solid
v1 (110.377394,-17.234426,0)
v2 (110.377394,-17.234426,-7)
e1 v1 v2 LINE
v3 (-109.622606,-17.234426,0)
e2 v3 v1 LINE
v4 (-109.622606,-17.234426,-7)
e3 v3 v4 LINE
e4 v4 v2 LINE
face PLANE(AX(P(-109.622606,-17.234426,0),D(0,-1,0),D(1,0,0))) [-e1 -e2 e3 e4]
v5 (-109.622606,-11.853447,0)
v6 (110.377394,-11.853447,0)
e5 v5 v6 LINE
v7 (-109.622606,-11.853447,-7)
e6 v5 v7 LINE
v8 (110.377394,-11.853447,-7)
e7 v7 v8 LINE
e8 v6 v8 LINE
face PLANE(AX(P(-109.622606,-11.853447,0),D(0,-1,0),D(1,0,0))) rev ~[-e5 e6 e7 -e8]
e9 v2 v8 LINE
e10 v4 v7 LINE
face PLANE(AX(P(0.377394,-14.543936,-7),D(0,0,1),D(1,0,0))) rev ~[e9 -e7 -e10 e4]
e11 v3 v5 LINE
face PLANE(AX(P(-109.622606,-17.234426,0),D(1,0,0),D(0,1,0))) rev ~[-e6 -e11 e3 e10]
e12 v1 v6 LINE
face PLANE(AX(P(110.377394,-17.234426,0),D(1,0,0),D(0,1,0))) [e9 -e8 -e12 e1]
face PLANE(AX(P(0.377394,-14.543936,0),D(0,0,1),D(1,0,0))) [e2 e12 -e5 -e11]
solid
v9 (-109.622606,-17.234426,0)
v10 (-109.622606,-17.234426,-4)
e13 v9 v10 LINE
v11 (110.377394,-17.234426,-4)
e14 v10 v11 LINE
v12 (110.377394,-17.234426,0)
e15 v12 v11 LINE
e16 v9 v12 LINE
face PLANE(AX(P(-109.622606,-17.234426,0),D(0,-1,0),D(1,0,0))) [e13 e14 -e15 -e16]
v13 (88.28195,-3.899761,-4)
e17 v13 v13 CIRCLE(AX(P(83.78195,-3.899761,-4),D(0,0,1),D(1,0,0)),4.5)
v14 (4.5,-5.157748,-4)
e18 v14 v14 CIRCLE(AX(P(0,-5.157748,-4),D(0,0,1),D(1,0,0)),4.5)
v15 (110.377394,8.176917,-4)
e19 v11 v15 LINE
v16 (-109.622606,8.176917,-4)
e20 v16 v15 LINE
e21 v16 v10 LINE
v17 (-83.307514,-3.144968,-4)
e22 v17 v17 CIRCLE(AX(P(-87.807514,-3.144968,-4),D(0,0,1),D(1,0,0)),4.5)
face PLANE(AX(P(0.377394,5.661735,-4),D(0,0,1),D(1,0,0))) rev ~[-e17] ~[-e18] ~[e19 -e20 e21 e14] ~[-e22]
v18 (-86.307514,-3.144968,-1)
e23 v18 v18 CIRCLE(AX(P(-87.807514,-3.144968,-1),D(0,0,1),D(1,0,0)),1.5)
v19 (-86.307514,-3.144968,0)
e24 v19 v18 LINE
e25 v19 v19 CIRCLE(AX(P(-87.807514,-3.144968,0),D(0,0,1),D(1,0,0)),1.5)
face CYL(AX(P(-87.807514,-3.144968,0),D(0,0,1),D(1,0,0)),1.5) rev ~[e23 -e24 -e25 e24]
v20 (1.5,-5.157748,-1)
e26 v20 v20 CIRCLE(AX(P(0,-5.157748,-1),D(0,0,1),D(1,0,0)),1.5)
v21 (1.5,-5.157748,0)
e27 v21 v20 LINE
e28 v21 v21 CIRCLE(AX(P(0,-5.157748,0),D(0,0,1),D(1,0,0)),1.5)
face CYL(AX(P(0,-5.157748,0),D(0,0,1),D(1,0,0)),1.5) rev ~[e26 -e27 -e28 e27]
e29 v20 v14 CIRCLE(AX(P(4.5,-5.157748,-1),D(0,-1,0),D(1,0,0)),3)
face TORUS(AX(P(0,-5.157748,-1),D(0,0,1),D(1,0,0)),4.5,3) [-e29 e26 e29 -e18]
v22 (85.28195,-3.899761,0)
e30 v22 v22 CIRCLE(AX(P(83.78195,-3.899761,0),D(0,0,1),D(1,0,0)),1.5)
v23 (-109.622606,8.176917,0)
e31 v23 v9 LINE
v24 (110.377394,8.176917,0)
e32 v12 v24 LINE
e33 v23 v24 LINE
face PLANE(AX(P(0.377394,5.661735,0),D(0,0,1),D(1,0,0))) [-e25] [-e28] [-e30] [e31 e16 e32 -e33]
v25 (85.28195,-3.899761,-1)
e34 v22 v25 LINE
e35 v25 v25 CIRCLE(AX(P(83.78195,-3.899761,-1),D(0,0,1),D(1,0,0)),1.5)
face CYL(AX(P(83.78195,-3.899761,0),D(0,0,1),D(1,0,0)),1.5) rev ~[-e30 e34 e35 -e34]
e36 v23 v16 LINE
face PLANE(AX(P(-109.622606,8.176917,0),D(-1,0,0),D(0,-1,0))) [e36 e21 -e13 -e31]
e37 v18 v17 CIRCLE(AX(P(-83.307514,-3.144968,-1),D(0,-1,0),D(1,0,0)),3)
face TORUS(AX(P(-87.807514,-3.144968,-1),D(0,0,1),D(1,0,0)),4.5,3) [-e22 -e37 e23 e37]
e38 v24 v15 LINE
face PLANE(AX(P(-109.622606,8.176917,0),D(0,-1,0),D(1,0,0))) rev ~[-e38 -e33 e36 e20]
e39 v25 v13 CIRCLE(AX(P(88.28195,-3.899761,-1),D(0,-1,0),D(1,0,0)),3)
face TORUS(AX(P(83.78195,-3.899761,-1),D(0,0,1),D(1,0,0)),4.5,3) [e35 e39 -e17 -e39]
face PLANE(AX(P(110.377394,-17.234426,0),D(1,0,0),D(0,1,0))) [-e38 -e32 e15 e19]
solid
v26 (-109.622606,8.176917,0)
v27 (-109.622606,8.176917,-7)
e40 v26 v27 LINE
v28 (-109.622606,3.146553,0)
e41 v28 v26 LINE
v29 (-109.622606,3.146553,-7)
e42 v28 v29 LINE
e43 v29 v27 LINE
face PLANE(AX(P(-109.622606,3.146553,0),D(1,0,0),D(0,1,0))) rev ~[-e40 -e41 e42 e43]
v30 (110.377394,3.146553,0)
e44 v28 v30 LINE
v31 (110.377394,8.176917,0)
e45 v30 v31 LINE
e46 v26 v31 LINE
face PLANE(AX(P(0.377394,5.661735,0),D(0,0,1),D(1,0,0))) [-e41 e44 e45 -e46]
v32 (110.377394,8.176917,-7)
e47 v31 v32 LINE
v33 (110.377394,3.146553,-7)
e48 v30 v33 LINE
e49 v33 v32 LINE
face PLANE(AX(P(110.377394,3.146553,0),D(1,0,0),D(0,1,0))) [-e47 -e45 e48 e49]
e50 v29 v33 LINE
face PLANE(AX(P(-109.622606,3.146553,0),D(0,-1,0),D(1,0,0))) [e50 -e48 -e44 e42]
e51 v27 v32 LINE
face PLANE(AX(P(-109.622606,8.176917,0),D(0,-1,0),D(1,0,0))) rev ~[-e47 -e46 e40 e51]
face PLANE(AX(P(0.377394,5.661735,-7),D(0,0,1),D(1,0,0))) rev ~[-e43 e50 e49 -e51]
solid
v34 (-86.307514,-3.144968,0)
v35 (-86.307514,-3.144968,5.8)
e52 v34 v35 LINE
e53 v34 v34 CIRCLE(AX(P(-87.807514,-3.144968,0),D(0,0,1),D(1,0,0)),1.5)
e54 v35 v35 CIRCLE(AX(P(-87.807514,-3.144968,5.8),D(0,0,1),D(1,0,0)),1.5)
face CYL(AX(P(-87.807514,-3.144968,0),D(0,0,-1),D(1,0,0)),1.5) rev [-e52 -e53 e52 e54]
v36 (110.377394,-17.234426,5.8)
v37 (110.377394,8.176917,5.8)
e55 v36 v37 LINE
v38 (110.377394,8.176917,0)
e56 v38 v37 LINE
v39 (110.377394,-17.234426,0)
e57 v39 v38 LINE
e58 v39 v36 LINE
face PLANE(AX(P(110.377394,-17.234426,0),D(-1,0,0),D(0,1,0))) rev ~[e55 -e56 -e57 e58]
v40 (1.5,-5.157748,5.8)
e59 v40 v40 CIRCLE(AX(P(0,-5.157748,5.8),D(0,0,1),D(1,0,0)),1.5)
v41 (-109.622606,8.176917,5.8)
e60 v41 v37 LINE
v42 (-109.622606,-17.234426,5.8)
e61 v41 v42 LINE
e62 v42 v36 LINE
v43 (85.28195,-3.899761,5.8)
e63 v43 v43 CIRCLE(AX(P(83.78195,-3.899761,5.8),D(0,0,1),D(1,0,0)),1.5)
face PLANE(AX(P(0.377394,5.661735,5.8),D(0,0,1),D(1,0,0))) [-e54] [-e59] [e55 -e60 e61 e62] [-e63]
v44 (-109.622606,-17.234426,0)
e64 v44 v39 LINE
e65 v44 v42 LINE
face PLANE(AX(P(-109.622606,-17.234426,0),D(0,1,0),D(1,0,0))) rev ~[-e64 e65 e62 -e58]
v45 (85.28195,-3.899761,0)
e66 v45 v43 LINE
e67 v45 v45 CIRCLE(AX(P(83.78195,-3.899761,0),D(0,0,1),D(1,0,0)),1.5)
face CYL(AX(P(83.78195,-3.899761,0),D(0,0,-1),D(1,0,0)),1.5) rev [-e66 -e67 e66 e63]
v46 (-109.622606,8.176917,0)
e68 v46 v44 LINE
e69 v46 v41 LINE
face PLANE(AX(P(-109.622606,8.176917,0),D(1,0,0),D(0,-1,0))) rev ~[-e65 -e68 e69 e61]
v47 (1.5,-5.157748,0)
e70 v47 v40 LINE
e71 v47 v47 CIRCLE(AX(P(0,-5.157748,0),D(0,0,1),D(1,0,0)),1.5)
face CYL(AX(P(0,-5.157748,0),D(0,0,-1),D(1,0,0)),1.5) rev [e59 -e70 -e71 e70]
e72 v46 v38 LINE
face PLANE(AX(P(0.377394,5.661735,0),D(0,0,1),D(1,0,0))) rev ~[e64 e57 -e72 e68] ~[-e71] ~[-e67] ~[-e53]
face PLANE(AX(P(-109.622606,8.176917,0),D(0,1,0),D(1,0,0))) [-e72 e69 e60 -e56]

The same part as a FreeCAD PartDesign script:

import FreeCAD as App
import Part
import Sketcher
from FreeCAD import Vector


def edges_at(feature, points):
    """Names of the edges that pass closest to the given points."""
    edges = feature.Shape.Edges
    near = lambda p: min(range(len(edges)), key=lambda i: edges[i].distToShape(Part.Vertex(*p))[0])
    return sorted({f"Edge{near(p) + 1}" for p in points})


def add_polygon(sketch, points):
    """Adds a closed chain of lines whose ends are joined by coincident constraints."""
    first, n = sketch.GeometryCount, len(points)
    for a, b in zip(points, points[1:] + points[:1]):
        sketch.addGeometry(Part.LineSegment(App.Vector(*a, 0), App.Vector(*b, 0)), False)
    for i in range(n):
        sketch.addConstraint(Sketcher.Constraint("Coincident", first + i, 2, first + (i + 1) % n, 1))

doc = App.newDocument("Part")
body = doc.addObject("PartDesign::Body", "Body")
body.AllowCompound = True

# Sketch on XY plane
sketch1 = doc.addObject("Sketcher::SketchObject", "Sketch")
body.addObject(sketch1)
sketch1.AttachmentSupport = (doc.XY_Plane, [""])
sketch1.MapMode = "FlatFace"
add_polygon(sketch1, [(-109.622606, -11.853447), (-109.622606, -17.234426), (110.377394, -17.234426), (110.377394, -11.853447)])  # lines 0-3
add_polygon(sketch1, [(-109.622606, 8.176917), (-109.622606, 3.146553), (110.377394, 3.146553), (110.377394, 8.176917)])  # lines 4-7
sketch1.addConstraint([
    Sketcher.Constraint("Vertical", 0),
    Sketcher.Constraint("Horizontal", 1),
    Sketcher.Constraint("Vertical", 2),
    Sketcher.Constraint("Horizontal", 3),
    Sketcher.Constraint("Vertical", 4),
    Sketcher.Constraint("Horizontal", 5),
    Sketcher.Constraint("Vertical", 6),
    Sketcher.Constraint("Horizontal", 7),
    Sketcher.Constraint("Vertical", 3, 2, 4, 2),
    Sketcher.Constraint("Vertical", 2, 2, 5, 2),
    Sketcher.Constraint("DistanceX", 1, 1, 1, 2, 220.0),
    Sketcher.Constraint("DistanceY", 3, 2, 4, 2, 15.0),
    Sketcher.Constraint("DistanceY", 0, 2, 0, 1, 5.380979),
    Sketcher.Constraint("DistanceY", 4, 2, 4, 1, 5.030364),
    Sketcher.Constraint("DistanceX", 0, 2, -1, 1, 109.622606),
    Sketcher.Constraint("DistanceY", 0, 2, -1, 1, 17.234426),
])
pad1 = doc.addObject("PartDesign::Pad", "Pad")
body.addObject(pad1)
pad1.Profile = sketch1
pad1.Length = 7
pad1.Reversed = True
body2 = doc.addObject("PartDesign::Body", "Body001")

# Sketch on XY plane
sketch2 = doc.addObject("Sketcher::SketchObject", "Sketch001")
body2.addObject(sketch2)
sketch2.AttachmentSupport = (doc.getObject("XY_Plane001"), [""])
sketch2.MapMode = "FlatFace"
add_polygon(sketch2, [(110.377394, 8.176917), (-109.622606, 8.176917), (-109.622606, -17.234426), (110.377394, -17.234426)])  # lines 0-3
sketch2.addGeometry(Part.Circle(Vector(0, -5.157748, 0), Vector(0, 0, 1), 1.5), False)  # 4
sketch2.addGeometry(Part.Circle(Vector(-87.807514, -3.144968, 0), Vector(0, 0, 1), 1.5), False)  # 5
sketch2.addGeometry(Part.Circle(Vector(83.78195, -3.899761, 0), Vector(0, 0, 1), 1.5), False)  # 6
sketch2.addConstraint([
    Sketcher.Constraint("Horizontal", 0),
    Sketcher.Constraint("Vertical", 1),
    Sketcher.Constraint("Horizontal", 2),
    Sketcher.Constraint("Vertical", 3),
    Sketcher.Constraint("Equal", 4, 5),
    Sketcher.Constraint("Equal", 5, 6),
    Sketcher.Constraint("PointOnObject", 4, 3, -2),
    Sketcher.Constraint("Diameter", 4, 3.0),
    Sketcher.Constraint("DistanceX", 0, 2, 0, 1, 220.0),
    Sketcher.Constraint("DistanceY", 1, 2, 1, 1, 25.411342),
    Sketcher.Constraint("DistanceY", 5, 3, -1, 1, 3.144968),
    Sketcher.Constraint("DistanceX", -1, 1, 6, 3, 83.78195),
    Sketcher.Constraint("DistanceY", 6, 3, -1, 1, 3.899761),
    Sketcher.Constraint("DistanceY", 4, 3, 5, 3, 2.01278),
    Sketcher.Constraint("DistanceX", 5, 3, 2, 2, 198.184908),
    Sketcher.Constraint("DistanceX", 5, 3, -1, 1, 87.807514),
    Sketcher.Constraint("DistanceY", -1, 1, 0, 2, 8.176917),
])
pad2 = doc.addObject("PartDesign::Pad", "Pad001")
body2.addObject(pad2)
pad2.Profile = sketch2
pad2.Length = 5.8
body3 = doc.addObject("PartDesign::Body", "Body002")

# Sketch on XY plane
sketch3 = doc.addObject("Sketcher::SketchObject", "Sketch002")
body3.addObject(sketch3)
sketch3.AttachmentSupport = (doc.getObject("XY_Plane002"), [""])
sketch3.MapMode = "FlatFace"
add_polygon(sketch3, [(110.377394, 8.176917), (-109.622606, 8.176917), (-109.622606, -17.234426), (110.377394, -17.234426)])  # lines 0-3
sketch3.addGeometry(Part.Circle(Vector(0, -5.157748, 0), Vector(0, 0, 1), 1.5), False)  # 4
sketch3.addGeometry(Part.Circle(Vector(-87.807514, -3.144968, 0), Vector(0, 0, 1), 1.5), False)  # 5
sketch3.addGeometry(Part.Circle(Vector(83.78195, -3.899761, 0), Vector(0, 0, 1), 1.5), False)  # 6
sketch3.addConstraint([
    Sketcher.Constraint("Horizontal", 0),
    Sketcher.Constraint("Vertical", 1),
    Sketcher.Constraint("Horizontal", 2),
    Sketcher.Constraint("Vertical", 3),
    Sketcher.Constraint("Equal", 4, 5),
    Sketcher.Constraint("Equal", 5, 6),
    Sketcher.Constraint("PointOnObject", 4, 3, -2),
    Sketcher.Constraint("Diameter", 4, 3.0),
    Sketcher.Constraint("DistanceX", 0, 2, 0, 1, 220.0),
    Sketcher.Constraint("DistanceY", 1, 2, 1, 1, 25.411342),
    Sketcher.Constraint("DistanceY", 5, 3, -1, 1, 3.144968),
    Sketcher.Constraint("DistanceX", -1, 1, 6, 3, 83.78195),
    Sketcher.Constraint("DistanceY", 6, 3, -1, 1, 3.899761),
    Sketcher.Constraint("DistanceY", 4, 3, 5, 3, 2.01278),
    Sketcher.Constraint("DistanceX", 5, 3, 2, 2, 198.184908),
    Sketcher.Constraint("DistanceX", 5, 3, -1, 1, 87.807514),
    Sketcher.Constraint("DistanceY", -1, 1, 0, 2, 8.176917),
])
pad3 = doc.addObject("PartDesign::Pad", "Pad002")
body3.addObject(pad3)
pad3.Profile = sketch3
pad3.Length = 4
pad3.Reversed = True
doc.recompute()

fillet = doc.addObject("PartDesign::Fillet", "Fillet")
body3.addObject(fillet)
fillet.Base = (pad3, edges_at(pad3, [(-89.308, -3.145, -4), (82.282, -3.9, -4), (-1.5, -5.158, -4)]))
fillet.Radius = 3

doc.recompute()
